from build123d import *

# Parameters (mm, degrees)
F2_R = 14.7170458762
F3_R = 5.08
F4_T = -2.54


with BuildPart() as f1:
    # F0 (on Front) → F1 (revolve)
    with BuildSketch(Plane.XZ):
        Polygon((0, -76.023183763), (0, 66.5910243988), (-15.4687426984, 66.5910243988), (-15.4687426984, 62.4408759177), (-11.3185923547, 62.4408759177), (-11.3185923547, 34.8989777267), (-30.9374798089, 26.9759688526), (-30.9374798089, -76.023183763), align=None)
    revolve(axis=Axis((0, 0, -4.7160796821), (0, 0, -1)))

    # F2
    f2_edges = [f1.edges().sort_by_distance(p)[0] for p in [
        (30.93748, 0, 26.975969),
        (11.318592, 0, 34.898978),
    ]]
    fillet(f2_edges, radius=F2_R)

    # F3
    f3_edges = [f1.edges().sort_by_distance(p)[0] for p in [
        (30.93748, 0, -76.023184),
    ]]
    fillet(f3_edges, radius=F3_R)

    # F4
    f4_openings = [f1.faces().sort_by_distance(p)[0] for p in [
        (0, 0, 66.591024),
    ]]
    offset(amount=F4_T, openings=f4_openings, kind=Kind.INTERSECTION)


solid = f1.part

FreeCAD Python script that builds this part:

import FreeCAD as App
import Part
import Sketcher
from FreeCAD import Vector


def edges_at(feature, points):
    """Names of the edges that pass closest to the given points."""
    edges = feature.Shape.Edges
    near = lambda p: min(range(len(edges)), key=lambda i: edges[i].distToShape(Part.Vertex(*p))[0])
    return sorted({f"Edge{near(p) + 1}" for p in points})


def faces_at(feature, points):
    """Names of the faces that lie closest to the given points."""
    faces = feature.Shape.Faces
    near = lambda p: min(range(len(faces)), key=lambda i: faces[i].distToShape(Part.Vertex(*p))[0])
    return sorted({f"Face{near(p) + 1}" for p in points})


def add_polygon(sketch, points):
    """Adds a closed chain of lines whose ends are joined by coincident constraints."""
    first, n = sketch.GeometryCount, len(points)
    for a, b in zip(points, points[1:] + points[:1]):
        sketch.addGeometry(Part.LineSegment(App.Vector(*a, 0), App.Vector(*b, 0)), False)
    for i in range(n):
        sketch.addConstraint(Sketcher.Constraint("Coincident", first + i, 2, first + (i + 1) % n, 1))

doc = App.newDocument("Part")
params = doc.addObject("Spreadsheet::Sheet", "Params")
for row, (alias, value) in enumerate([
    ("revolution_angle", "360 deg"),
    ("fillet_radius", "14.717046 mm"),
    ("fillet2_radius", "0.2 in"),
    ("thickness_wall", "0.1 in"),
], start=1):
    params.set(f"A{row}", alias)
    params.set(f"B{row}", "=" + value)
    params.setAlias(f"B{row}", alias)

body = doc.addObject("PartDesign::Body", "Body")

# Sketch on XZ plane
sketch1 = body.newObject("Sketcher::SketchObject", "Sketch")
sketch1.AttachmentSupport = (doc.getObject("XZ_Plane"), [""])
sketch1.MapMode = "FlatFace"
add_polygon(sketch1, [(0, -76), (0, 66.6), (-15.5, 66.6), (-15.5, 62.4), (-11.3, 62.4), (-11.3, 34.9), (-30.9, 27), (-30.9, -76)])  # lines 0-7
sketch1.addConstraint(Sketcher.Constraint("Vertical", 0))
sketch1.addConstraint(Sketcher.Constraint("Horizontal", 1))
sketch1.addConstraint(Sketcher.Constraint("Vertical", 2))
sketch1.addConstraint(Sketcher.Constraint("Horizontal", 3))
sketch1.addConstraint(Sketcher.Constraint("Vertical", 4))
sketch1.addConstraint(Sketcher.Constraint("Vertical", 6))
sketch1.addConstraint(Sketcher.Constraint("Horizontal", 7))
sketch1.addConstraint(Sketcher.Constraint("PointOnObject", 0, 2, -2))
sketch1.addConstraint(Sketcher.Constraint("Equal", 3, 2))
sketch1.addConstraint(Sketcher.Constraint("DistanceY", 4, 2, 4, 1, 27.541898))
sketch1.addConstraint(Sketcher.Constraint("DistanceX", 3, 1, 3, 2, 4.15015))
sketch1.addConstraint(Sketcher.Constraint("DistanceX", 7, 1, 7, 2, 30.93748))
sketch1.addConstraint(Sketcher.Constraint("DistanceY", 0, 1, 0, 2, 142.614208))
sketch1.addConstraint(Sketcher.Constraint("DistanceX", 1, 2, 1, 1, 15.468743))
sketch1.addConstraint(Sketcher.Constraint("DistanceY", 6, 2, 6, 1, 102.999153))
sketch1.addConstraint(Sketcher.Constraint("DistanceY", -1, 1, 5, 2, 26.975969))
revolution = body.newObject("PartDesign::Revolution", "Revolution")
revolution.Profile = sketch1
revolution.ReferenceAxis = (sketch1, ["V_Axis"])
revolution.setExpression("Angle", "Params.revolution_angle")
doc.recompute()

fillet = body.newObject("PartDesign::Fillet", "Fillet")
fillet.Base = (revolution, edges_at(revolution, [(30.937, 0, 26.976), (11.319, 0, 34.899)]))
fillet.setExpression("Radius", "Params.fillet_radius")
doc.recompute()

fillet2 = body.newObject("PartDesign::Fillet", "Fillet001")
fillet2.Base = (fillet, edges_at(fillet, [(30.937, 0, -76.023)]))
fillet2.setExpression("Radius", "Params.fillet2_radius")
doc.recompute()

thickness = body.newObject("PartDesign::Thickness", "Thickness")
thickness.Base = (fillet2, faces_at(fillet2, [(0, 0, 66.591)]))
thickness.setExpression("Value", "Params.thickness_wall")
thickness.Reversed = True
thickness.Join = "Intersection"

doc.recompute()
